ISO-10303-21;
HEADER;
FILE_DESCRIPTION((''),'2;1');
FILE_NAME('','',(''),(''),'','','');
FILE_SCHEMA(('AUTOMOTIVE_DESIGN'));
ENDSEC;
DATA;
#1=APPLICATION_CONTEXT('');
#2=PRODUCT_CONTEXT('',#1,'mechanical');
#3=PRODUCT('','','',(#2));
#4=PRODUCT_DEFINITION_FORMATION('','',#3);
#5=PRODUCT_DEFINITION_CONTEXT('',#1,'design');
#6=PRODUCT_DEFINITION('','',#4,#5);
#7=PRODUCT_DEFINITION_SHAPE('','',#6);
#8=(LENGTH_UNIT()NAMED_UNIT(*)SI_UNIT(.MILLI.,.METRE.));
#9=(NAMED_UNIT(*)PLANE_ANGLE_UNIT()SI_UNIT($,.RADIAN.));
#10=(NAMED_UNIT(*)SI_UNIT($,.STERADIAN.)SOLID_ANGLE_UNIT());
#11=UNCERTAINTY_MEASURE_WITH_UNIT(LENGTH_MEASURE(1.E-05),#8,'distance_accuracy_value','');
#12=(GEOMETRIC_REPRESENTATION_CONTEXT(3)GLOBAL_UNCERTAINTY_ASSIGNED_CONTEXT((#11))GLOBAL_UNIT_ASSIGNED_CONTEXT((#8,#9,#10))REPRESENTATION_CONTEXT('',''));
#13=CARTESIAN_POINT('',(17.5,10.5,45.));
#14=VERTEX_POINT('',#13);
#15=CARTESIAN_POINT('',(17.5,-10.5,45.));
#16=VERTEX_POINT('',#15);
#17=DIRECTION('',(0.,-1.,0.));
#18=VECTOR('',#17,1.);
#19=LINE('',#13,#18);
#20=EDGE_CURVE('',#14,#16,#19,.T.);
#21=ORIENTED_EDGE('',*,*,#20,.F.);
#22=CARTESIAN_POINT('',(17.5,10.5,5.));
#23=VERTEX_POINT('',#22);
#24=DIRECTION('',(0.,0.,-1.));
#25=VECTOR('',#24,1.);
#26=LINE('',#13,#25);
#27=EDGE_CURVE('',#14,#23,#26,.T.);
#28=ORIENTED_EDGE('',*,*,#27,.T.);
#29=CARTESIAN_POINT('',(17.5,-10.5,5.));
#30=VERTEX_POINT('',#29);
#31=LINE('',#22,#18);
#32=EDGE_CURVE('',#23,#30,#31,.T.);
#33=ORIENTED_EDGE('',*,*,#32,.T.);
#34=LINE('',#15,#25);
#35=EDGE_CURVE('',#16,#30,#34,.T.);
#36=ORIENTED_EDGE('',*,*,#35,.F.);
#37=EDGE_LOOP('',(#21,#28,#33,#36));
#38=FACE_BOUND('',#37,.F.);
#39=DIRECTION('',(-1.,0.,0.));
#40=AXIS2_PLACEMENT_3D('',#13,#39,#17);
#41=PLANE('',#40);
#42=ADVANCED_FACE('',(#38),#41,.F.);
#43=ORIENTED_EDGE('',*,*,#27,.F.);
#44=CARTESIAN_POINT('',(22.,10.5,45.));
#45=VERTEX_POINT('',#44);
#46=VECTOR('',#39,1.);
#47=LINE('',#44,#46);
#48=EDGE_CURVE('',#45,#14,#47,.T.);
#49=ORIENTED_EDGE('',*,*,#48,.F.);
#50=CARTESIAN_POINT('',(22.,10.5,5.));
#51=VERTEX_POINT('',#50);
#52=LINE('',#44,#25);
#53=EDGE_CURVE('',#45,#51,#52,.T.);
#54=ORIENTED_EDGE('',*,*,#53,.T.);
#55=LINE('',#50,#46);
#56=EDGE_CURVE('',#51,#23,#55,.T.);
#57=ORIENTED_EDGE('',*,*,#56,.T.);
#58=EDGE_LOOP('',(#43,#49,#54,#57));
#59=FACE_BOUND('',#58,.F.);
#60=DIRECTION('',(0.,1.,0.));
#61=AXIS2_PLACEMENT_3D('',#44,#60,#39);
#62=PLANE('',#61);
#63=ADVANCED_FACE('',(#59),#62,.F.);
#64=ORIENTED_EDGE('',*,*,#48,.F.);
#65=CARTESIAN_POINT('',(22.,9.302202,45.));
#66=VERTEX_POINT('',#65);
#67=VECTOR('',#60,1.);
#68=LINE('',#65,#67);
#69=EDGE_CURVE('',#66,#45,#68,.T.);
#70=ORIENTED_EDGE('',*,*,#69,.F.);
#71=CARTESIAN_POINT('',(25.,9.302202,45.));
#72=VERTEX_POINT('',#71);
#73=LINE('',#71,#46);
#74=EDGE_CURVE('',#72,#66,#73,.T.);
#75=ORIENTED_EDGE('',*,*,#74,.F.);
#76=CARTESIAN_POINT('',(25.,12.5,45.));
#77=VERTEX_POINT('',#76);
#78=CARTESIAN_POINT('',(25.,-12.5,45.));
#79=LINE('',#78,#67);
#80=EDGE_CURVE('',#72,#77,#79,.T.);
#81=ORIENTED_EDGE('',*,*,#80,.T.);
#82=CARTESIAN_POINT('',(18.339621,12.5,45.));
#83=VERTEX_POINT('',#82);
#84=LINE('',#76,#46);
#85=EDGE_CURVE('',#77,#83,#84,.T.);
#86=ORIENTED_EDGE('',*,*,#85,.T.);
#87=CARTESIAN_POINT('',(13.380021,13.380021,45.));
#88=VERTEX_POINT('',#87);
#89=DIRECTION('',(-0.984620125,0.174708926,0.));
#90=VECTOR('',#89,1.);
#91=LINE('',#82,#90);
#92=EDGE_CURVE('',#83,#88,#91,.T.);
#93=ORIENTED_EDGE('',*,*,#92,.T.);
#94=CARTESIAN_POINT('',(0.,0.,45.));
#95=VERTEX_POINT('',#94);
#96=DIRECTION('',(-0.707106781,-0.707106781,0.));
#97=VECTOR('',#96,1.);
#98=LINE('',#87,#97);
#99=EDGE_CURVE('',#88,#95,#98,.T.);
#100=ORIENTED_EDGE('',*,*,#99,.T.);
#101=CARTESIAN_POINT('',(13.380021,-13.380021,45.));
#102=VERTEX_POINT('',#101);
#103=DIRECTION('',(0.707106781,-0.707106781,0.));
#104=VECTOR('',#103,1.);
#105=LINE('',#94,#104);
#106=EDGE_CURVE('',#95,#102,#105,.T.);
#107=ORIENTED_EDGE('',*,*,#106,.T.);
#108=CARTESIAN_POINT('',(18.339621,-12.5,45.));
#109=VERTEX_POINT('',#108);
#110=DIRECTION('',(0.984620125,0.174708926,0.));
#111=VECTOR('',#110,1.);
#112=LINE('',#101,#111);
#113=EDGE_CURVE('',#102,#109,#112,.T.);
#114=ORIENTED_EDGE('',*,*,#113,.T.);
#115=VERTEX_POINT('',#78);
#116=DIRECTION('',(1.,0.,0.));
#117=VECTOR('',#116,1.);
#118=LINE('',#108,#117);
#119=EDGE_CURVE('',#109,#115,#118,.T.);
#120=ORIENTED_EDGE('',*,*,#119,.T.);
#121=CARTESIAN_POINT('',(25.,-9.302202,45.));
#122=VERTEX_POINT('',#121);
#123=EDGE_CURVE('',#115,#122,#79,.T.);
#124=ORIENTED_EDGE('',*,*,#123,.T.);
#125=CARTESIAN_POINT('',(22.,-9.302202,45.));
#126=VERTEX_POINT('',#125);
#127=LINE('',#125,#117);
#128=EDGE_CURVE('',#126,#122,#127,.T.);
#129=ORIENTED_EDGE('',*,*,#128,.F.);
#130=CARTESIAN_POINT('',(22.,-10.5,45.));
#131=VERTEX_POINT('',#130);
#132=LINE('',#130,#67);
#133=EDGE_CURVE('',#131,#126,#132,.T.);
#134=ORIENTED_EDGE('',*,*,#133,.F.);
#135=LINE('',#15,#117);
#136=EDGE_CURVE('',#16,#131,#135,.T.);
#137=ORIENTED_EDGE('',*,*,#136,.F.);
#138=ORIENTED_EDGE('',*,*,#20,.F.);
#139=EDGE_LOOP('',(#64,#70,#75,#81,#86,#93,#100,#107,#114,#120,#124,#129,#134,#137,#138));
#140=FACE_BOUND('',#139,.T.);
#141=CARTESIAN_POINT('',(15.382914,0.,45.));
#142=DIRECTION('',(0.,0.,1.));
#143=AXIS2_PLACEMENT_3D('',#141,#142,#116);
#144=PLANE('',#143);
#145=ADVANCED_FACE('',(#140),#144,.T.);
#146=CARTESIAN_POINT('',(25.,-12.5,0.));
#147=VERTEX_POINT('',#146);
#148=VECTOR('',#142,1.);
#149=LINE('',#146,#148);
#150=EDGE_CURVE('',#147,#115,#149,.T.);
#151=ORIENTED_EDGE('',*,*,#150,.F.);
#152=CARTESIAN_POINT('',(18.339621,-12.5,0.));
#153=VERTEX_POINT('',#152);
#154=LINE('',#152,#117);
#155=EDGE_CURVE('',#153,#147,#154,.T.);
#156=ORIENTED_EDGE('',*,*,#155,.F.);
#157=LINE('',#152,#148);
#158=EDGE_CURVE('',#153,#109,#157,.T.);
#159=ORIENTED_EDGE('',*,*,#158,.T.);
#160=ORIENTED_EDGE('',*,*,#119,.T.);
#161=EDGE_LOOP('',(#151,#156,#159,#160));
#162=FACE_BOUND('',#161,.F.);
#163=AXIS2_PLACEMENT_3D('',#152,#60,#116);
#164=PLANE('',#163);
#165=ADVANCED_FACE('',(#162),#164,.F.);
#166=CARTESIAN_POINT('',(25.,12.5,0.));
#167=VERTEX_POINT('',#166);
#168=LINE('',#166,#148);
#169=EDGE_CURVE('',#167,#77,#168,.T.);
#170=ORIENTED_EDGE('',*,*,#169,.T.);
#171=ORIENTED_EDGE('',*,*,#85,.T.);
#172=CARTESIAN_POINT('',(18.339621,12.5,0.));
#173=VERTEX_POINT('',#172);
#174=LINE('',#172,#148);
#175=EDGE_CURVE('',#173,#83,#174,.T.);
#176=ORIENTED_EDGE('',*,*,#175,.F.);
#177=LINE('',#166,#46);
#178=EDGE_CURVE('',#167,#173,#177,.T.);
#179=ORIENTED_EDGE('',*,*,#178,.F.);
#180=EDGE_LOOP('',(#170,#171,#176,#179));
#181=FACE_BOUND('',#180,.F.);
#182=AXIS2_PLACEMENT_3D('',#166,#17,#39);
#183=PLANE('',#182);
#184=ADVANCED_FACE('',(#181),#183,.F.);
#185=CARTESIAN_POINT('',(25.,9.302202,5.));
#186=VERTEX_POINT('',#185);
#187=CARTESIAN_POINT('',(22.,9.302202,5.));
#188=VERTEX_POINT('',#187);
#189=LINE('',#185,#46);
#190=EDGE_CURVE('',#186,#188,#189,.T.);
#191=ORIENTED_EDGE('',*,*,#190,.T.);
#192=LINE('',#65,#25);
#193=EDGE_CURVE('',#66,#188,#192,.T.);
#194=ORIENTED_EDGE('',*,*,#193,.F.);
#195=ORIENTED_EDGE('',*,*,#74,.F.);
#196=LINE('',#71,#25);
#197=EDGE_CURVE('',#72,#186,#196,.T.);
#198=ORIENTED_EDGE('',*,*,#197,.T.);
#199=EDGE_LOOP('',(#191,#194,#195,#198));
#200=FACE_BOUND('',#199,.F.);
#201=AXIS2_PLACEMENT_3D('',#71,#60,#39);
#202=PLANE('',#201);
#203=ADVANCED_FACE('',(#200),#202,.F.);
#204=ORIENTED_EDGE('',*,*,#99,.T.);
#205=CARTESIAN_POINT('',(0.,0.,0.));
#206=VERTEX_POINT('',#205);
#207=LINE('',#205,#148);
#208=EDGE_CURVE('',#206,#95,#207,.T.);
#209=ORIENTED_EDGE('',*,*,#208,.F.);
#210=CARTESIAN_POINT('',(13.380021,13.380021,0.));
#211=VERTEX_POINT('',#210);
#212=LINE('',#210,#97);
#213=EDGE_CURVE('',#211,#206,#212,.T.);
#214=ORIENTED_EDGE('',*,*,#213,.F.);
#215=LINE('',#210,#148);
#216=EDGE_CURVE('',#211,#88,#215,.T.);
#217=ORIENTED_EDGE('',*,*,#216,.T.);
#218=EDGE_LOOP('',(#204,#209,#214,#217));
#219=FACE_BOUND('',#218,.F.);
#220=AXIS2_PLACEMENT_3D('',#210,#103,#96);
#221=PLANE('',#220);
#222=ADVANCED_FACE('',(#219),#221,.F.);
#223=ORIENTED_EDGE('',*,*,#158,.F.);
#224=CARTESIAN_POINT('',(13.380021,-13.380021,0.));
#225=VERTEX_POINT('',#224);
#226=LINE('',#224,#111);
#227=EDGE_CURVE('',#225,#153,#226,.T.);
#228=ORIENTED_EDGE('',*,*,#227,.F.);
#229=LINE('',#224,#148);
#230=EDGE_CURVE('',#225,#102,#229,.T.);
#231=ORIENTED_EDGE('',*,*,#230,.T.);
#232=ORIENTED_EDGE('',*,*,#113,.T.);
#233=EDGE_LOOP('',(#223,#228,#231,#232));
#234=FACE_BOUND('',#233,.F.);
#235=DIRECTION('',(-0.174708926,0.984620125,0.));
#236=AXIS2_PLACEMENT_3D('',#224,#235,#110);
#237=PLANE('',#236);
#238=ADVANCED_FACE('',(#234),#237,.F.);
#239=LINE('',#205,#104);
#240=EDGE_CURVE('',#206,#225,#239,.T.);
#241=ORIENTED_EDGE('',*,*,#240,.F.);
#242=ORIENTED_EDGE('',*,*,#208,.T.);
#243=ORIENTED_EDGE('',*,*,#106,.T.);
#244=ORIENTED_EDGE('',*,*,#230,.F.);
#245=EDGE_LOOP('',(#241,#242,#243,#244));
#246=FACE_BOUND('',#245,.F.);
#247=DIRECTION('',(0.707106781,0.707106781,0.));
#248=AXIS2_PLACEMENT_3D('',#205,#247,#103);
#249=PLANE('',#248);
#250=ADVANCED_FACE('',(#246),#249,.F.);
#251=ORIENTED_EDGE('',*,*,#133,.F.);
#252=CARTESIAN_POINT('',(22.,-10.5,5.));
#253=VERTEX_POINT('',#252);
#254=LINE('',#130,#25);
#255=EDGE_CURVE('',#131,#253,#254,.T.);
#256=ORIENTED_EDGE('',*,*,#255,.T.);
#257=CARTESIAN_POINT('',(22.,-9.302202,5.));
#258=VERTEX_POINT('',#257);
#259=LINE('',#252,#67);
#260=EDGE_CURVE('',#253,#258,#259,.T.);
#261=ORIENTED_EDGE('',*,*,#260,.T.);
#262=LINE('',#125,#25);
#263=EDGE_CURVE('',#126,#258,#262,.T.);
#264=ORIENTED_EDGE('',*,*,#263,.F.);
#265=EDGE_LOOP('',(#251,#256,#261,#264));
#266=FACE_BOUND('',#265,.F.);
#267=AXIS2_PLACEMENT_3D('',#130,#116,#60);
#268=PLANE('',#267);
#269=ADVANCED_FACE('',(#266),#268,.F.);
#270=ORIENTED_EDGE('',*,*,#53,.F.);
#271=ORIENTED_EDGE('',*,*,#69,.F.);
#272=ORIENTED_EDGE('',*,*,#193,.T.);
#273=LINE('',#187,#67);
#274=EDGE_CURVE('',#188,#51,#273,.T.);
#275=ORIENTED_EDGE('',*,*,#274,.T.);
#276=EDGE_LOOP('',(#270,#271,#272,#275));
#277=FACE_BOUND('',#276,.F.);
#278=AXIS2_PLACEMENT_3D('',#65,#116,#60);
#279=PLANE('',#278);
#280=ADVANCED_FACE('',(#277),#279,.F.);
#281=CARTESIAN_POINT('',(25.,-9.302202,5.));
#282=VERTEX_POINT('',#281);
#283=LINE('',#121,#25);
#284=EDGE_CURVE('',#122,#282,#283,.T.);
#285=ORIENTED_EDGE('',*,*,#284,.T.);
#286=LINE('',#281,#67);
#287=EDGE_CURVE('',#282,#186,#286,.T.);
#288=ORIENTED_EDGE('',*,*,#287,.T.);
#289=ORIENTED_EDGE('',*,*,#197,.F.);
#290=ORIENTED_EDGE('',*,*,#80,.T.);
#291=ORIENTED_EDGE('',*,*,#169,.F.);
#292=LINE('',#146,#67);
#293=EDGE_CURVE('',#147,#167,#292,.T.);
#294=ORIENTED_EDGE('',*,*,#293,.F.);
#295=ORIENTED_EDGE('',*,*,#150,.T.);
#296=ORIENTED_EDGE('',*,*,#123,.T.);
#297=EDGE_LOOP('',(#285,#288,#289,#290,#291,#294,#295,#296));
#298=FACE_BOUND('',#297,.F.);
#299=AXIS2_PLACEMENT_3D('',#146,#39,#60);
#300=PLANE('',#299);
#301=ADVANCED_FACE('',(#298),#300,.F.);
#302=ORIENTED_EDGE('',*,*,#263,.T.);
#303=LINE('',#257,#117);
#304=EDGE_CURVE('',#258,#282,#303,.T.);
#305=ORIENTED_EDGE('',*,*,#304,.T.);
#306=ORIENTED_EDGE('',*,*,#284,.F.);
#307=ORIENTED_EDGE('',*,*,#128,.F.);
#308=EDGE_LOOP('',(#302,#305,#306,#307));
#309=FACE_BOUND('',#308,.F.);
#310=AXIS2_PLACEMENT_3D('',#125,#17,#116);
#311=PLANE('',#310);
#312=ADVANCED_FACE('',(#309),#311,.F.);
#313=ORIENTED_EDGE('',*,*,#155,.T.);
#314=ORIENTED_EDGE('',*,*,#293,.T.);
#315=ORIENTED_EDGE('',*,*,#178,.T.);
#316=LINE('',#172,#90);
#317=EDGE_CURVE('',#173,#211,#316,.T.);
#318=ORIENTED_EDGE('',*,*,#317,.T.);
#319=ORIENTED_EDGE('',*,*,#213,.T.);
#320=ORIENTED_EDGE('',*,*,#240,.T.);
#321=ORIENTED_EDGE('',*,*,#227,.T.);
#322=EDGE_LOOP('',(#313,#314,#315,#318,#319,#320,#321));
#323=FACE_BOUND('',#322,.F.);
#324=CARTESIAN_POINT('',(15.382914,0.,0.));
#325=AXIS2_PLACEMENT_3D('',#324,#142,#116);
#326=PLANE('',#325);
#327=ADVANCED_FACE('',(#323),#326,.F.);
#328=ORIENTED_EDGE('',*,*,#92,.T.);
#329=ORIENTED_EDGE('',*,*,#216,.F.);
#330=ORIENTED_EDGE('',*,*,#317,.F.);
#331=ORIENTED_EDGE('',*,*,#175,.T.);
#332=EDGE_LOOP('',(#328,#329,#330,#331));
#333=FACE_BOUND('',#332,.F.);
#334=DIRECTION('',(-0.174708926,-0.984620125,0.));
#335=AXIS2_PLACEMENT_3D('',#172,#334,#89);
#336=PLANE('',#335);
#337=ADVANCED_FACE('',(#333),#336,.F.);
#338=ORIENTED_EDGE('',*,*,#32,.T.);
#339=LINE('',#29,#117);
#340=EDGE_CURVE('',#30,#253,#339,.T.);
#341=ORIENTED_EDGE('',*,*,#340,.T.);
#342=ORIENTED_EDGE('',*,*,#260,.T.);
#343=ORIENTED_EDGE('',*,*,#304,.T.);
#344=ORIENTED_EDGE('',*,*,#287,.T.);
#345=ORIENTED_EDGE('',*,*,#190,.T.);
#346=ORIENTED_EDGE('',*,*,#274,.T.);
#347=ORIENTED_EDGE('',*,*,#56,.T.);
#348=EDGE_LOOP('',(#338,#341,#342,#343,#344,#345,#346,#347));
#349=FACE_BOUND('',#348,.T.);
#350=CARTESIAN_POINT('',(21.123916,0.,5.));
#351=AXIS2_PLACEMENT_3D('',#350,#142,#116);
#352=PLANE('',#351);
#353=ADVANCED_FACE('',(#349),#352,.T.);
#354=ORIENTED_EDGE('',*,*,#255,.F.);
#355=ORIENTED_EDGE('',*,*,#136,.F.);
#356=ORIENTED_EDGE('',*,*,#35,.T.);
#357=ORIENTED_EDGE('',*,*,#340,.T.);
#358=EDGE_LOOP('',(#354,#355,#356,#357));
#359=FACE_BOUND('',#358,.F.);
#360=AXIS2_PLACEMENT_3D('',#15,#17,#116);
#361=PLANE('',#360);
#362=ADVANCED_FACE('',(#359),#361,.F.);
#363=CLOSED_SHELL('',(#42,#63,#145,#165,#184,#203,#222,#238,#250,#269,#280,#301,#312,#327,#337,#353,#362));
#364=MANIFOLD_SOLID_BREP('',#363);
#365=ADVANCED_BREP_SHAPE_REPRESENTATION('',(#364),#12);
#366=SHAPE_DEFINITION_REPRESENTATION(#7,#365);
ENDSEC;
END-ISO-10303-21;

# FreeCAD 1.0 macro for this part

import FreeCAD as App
import Part
import Sketcher
from FreeCAD import Vector
Q = App.Units.Quantity


def add_polygon(sketch, points):
    """Adds a closed chain of lines whose ends are joined by coincident constraints."""
    first, n = sketch.GeometryCount, len(points)
    for a, b in zip(points, points[1:] + points[:1]):
        sketch.addGeometry(Part.LineSegment(App.Vector(*a, 0), App.Vector(*b, 0)), False)
    for i in range(n):
        sketch.addConstraint(Sketcher.Constraint("Coincident", first + i, 2, first + (i + 1) % n, 1))

doc = App.newDocument("Part")
body = doc.addObject("PartDesign::Body", "Body")

# Sketch on XY plane
sketch1 = body.newObject("Sketcher::SketchObject", "Sketch")
sketch1.AttachmentSupport = (doc.getObject("XY_Plane"), [""])
sketch1.MapMode = "FlatFace"
add_polygon(sketch1, [(13, 13), (0, 0), (13, -13), (18, -12), (25, -12), (25, 12), (18, 12)])  # lines 0-6
sketch1.addConstraint([
    Sketcher.Constraint("Horizontal", 3),
    Sketcher.Constraint("Vertical", 4),
    Sketcher.Constraint("Horizontal", 5),
    Sketcher.Constraint("Coincident", 0, 2, -1, 1),
    Sketcher.Constraint("Symmetric", 2, 2, 5, 2, -1),
    Sketcher.Constraint("Symmetric", 1, 2, 6, 2, -1),
    Sketcher.Constraint("Perpendicular", 0, 1),
    Sketcher.Constraint("DistanceY", 4, 1, 4, 2, Q("25 mm")),
    Sketcher.Constraint("DistanceX", -1, 1, 3, 2, Q("25 mm")),
    Sketcher.Constraint("DistanceX", 3, 1, 3, 2, Q("6.660379 mm")),
    Sketcher.Constraint("DistanceX", 1, 2, 2, 2, Q("4.9596 mm")),
])
pad1 = body.newObject("PartDesign::Pad", "Pad")
pad1.Profile = sketch1
pad1.Length = 45

# Sketch on XY plane
sketch2 = body.newObject("Sketcher::SketchObject", "Sketch001")
sketch2.AttachmentSupport = (doc.getObject("XY_Plane"), [""])
sketch2.MapMode = "FlatFace"
sketch2.AttachmentOffset = App.Placement(Vector(0, 0, 45), App.Rotation())
add_polygon(sketch2, [(25, 9.3), (22, 9.3), (22, 10.5), (17.5, 10.5), (17.5, -10.5), (22, -10.5), (22, -9.3), (25, -9.3)])  # lines 0-7
sketch2.addConstraint([
    Sketcher.Constraint("Horizontal", 0),
    Sketcher.Constraint("Vertical", 1),
    Sketcher.Constraint("Horizontal", 2),
    Sketcher.Constraint("Vertical", 3),
    Sketcher.Constraint("Horizontal", 4),
    Sketcher.Constraint("Vertical", 5),
    Sketcher.Constraint("Horizontal", 6),
    Sketcher.Constraint("Vertical", 7),
    Sketcher.Constraint("Symmetric", 1, 2, 4, 2, -1),
    Sketcher.Constraint("Equal", 1, 5),
    Sketcher.Constraint("DistanceX", 0, 2, 0, 1, Q("3 mm")),
    Sketcher.Constraint("DistanceY", 3, 2, 3, 1, Q("21 mm")),
    Sketcher.Constraint("DistanceX", 2, 2, 2, 1, Q("4.5 mm")),
    Sketcher.Constraint("DistanceX", -1, 1, 0, 2, Q("22 mm")),
    Sketcher.Constraint("DistanceY", 1, 1, 1, 2, Q("1.197798 mm")),
])
pocket1 = body.newObject("PartDesign::Pocket", "Pocket")
pocket1.Profile = sketch2
pocket1.Length = 40

doc.recompute()
